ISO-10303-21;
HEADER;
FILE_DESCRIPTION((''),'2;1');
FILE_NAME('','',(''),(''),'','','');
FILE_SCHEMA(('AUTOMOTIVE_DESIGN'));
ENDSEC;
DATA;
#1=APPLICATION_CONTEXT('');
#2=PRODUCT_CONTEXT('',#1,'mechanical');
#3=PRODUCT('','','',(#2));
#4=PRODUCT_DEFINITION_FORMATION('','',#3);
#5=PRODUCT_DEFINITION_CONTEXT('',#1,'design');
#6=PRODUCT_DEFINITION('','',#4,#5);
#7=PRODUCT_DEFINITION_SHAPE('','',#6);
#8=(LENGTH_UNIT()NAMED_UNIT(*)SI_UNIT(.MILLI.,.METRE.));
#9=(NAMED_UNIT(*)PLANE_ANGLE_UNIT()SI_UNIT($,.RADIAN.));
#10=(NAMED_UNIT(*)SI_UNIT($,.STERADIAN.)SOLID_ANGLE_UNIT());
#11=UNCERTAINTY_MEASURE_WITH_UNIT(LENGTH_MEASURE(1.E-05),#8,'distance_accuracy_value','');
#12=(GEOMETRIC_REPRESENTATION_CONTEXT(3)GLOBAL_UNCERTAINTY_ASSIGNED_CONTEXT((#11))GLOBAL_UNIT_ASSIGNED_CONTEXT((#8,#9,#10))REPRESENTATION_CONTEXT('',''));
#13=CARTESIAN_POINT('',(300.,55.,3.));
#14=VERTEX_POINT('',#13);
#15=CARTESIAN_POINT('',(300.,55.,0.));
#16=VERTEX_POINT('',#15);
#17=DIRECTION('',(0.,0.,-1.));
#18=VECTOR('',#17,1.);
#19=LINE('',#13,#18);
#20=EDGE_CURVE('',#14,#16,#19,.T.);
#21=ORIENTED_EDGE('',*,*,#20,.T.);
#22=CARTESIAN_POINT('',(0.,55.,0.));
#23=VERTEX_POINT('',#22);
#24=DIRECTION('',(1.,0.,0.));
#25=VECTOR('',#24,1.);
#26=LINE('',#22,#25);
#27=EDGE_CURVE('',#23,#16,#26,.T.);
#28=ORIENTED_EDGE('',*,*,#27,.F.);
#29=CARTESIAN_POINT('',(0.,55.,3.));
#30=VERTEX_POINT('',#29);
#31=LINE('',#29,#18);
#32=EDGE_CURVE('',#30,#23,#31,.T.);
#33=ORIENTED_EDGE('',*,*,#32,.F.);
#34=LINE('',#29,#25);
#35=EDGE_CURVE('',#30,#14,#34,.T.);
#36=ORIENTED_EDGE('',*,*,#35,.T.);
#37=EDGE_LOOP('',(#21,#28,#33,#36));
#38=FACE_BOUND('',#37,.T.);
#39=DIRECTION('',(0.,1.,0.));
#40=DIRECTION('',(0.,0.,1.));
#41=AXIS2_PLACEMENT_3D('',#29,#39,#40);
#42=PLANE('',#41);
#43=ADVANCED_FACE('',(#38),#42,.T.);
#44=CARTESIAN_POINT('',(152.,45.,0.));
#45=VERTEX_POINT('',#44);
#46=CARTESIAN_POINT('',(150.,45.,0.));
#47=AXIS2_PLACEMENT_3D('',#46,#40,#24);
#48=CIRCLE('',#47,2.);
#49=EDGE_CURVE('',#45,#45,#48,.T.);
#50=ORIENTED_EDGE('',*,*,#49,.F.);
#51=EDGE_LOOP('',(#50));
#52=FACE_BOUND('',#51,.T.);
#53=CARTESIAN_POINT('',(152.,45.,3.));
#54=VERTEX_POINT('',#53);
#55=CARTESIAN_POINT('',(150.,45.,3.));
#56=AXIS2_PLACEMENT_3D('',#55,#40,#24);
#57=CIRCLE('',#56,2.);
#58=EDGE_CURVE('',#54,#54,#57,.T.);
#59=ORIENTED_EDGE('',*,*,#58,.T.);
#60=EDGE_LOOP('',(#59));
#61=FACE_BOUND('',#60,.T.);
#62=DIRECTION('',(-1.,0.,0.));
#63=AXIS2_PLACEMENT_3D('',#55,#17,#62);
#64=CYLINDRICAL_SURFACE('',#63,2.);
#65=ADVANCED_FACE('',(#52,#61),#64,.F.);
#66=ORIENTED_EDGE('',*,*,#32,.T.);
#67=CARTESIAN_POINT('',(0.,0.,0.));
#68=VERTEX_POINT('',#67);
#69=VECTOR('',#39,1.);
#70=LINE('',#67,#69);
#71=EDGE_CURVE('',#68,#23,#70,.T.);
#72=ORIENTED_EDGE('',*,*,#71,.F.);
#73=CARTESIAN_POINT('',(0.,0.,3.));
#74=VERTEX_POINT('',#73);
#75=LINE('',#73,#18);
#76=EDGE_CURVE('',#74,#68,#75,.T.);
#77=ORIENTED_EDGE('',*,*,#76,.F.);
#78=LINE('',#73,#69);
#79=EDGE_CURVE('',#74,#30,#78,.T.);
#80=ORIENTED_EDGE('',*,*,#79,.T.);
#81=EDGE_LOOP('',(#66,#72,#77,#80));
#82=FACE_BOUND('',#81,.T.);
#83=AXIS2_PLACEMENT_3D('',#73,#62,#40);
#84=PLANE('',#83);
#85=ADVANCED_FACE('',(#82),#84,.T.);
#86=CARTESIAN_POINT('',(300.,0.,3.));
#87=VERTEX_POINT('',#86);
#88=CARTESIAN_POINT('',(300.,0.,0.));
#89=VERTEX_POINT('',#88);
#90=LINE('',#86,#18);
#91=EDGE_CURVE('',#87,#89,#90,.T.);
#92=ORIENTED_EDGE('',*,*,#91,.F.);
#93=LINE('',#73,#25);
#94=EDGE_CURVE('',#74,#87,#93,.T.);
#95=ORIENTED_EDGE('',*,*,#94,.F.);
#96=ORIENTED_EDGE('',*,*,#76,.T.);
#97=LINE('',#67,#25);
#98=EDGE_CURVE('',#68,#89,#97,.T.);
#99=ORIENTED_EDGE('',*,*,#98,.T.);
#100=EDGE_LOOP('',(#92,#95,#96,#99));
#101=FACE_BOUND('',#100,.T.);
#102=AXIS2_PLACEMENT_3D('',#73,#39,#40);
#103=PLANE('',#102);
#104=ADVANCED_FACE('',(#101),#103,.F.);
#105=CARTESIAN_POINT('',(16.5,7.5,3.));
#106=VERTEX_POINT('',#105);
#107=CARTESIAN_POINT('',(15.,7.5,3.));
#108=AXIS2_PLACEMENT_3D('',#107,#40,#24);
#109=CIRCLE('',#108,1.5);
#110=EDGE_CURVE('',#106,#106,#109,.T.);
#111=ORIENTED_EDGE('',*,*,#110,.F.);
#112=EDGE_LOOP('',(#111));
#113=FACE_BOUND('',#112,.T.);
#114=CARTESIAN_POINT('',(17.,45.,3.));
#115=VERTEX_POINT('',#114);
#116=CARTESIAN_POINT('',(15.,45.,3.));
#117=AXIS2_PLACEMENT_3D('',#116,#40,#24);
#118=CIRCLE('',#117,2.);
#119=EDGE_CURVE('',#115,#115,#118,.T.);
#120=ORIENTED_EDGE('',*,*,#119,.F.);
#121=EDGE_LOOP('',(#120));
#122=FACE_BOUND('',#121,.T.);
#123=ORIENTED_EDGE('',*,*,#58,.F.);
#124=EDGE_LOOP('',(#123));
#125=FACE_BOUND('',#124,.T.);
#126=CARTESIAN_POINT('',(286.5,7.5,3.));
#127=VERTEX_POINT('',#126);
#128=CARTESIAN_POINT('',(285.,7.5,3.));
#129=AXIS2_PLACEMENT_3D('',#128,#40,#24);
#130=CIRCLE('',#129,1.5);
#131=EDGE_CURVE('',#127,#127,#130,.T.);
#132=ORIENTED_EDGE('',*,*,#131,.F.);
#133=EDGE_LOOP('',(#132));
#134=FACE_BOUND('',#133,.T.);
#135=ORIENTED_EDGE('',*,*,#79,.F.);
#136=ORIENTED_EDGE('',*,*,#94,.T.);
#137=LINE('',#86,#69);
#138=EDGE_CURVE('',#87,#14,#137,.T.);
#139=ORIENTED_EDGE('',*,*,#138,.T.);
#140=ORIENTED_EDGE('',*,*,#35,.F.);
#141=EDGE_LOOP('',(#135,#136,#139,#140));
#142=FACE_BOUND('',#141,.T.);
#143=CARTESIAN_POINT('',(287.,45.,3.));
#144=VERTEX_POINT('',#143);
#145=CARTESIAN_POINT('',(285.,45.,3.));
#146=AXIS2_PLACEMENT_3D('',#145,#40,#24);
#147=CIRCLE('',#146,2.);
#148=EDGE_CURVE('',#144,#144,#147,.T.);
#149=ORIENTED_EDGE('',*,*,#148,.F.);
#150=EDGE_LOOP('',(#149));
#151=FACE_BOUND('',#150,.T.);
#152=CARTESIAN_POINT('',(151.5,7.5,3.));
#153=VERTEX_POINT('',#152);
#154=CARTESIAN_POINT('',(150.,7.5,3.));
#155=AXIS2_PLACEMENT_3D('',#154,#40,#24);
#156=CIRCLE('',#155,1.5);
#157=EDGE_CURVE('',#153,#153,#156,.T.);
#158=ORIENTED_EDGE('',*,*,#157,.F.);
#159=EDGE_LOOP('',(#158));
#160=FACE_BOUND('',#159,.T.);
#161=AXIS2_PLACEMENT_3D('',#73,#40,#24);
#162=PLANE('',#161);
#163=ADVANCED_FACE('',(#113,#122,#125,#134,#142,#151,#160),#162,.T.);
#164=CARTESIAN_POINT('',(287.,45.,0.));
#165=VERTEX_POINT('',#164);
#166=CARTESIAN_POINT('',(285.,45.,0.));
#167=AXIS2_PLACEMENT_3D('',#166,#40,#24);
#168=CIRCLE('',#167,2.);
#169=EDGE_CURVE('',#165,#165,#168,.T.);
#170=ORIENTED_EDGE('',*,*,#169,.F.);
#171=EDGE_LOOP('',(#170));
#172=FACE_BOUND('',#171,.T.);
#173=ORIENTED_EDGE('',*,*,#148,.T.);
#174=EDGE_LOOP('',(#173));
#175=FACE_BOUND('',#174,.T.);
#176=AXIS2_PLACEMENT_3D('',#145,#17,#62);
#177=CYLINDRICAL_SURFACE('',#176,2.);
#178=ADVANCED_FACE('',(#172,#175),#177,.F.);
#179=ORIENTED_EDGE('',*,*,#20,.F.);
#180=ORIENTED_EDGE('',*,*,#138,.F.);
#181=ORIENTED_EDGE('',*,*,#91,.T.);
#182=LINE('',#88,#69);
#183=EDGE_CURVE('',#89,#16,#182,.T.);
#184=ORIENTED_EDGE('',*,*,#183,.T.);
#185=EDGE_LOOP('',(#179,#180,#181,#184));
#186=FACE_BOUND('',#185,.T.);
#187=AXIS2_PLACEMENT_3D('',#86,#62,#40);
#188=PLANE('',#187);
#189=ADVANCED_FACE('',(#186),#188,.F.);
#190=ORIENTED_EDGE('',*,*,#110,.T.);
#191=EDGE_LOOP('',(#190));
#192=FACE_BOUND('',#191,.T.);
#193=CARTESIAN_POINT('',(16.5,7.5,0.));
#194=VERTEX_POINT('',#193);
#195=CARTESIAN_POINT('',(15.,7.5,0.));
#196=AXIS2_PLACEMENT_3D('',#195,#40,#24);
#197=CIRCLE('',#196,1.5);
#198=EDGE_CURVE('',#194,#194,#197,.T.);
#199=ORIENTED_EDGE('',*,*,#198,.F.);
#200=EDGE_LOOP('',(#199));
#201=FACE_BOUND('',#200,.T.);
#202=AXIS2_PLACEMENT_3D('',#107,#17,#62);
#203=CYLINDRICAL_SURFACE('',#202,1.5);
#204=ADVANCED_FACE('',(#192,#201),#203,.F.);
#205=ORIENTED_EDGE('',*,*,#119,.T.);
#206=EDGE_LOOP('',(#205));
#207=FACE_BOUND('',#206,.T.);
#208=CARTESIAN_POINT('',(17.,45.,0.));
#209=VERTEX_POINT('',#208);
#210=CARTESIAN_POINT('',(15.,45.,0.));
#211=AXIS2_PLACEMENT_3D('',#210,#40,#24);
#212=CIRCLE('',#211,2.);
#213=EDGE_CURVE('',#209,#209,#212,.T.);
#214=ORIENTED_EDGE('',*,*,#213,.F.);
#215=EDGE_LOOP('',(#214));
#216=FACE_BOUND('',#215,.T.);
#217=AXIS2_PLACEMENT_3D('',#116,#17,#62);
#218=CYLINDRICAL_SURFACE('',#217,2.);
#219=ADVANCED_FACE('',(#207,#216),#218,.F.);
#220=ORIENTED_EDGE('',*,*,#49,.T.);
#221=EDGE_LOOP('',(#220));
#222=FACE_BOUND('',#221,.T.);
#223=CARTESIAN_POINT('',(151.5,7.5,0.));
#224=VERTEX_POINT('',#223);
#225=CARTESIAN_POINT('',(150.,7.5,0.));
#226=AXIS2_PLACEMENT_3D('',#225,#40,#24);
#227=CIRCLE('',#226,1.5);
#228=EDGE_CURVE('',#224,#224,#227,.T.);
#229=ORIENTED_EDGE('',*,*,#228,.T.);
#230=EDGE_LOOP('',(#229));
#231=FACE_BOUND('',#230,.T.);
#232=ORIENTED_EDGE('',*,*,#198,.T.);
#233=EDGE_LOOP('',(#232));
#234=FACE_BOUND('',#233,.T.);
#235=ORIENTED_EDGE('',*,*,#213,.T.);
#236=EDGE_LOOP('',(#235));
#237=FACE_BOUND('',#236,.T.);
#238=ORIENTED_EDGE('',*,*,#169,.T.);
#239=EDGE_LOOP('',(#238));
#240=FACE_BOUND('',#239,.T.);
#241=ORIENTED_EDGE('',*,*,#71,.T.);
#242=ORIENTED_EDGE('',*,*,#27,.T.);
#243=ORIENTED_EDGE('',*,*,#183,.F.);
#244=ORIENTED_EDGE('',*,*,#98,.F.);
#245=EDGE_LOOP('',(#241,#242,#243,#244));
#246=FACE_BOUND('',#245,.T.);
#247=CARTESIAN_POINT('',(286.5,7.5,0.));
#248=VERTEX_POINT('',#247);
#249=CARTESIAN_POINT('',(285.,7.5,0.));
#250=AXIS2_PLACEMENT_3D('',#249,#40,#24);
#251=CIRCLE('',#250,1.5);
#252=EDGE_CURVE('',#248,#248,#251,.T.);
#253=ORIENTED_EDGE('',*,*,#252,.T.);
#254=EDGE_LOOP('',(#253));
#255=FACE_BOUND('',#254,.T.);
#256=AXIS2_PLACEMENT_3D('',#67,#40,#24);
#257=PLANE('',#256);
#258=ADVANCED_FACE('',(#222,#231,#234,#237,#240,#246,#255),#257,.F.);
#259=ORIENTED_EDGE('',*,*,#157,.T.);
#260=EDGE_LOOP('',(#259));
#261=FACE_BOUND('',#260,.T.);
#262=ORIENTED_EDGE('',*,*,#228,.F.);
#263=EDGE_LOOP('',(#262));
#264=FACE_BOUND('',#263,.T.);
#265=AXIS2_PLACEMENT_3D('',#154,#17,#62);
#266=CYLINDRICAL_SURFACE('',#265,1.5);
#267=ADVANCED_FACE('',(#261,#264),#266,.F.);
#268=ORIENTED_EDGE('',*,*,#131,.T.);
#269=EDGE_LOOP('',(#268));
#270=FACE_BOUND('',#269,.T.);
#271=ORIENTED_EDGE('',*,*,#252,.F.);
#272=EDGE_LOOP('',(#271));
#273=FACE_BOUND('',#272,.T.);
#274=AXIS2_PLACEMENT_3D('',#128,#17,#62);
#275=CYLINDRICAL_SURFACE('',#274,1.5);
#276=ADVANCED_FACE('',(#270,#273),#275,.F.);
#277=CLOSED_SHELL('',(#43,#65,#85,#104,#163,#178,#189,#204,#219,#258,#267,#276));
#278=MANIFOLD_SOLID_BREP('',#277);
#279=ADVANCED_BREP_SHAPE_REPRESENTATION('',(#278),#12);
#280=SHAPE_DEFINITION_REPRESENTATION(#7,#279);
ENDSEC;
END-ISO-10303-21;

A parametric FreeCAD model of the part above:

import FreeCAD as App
import Part
import Sketcher
from FreeCAD import Vector


def add_polygon(sketch, points):
    """Adds a closed chain of lines whose ends are joined by coincident constraints."""
    first, n = sketch.GeometryCount, len(points)
    for a, b in zip(points, points[1:] + points[:1]):
        sketch.addGeometry(Part.LineSegment(App.Vector(*a, 0), App.Vector(*b, 0)), False)
    for i in range(n):
        sketch.addConstraint(Sketcher.Constraint("Coincident", first + i, 2, first + (i + 1) % n, 1))

doc = App.newDocument("Part")
body = doc.addObject("PartDesign::Body", "Body")

# Sketch on XY plane
sketch1 = doc.addObject("Sketcher::SketchObject", "Sketch")
body.addObject(sketch1)
sketch1.AttachmentSupport = (doc.XY_Plane, [""])
sketch1.MapMode = "FlatFace"
add_polygon(sketch1, [(0, 55), (0, 0), (300, 0), (300, 55)])  # lines 0-3
sketch1.addGeometry(Part.Circle(Vector(15, 7.5, 0), Vector(0, 0, 1), 1.5), False)  # 4
sketch1.addGeometry(Part.Circle(Vector(150, 7.5, 0), Vector(0, 0, 1), 1.5), False)  # 5
sketch1.addGeometry(Part.Circle(Vector(285, 7.5, 0), Vector(0, 0, 1), 1.5), False)  # 6
sketch1.addGeometry(Part.Circle(Vector(15, 45, 0), Vector(0, 0, 1), 2), False)  # 7
sketch1.addGeometry(Part.Circle(Vector(150, 45, 0), Vector(0, 0, 1), 2), False)  # 8
sketch1.addGeometry(Part.Circle(Vector(285, 45, 0), Vector(0, 0, 1), 2), False)  # 9
sketch1.addConstraint([
    Sketcher.Constraint("Vertical", 0),
    Sketcher.Constraint("Horizontal", 1),
    Sketcher.Constraint("Vertical", 2),
    Sketcher.Constraint("Horizontal", 3),
    Sketcher.Constraint("Coincident", 0, 2, -1, 1),
    Sketcher.Constraint("Equal", 4, 5),
    Sketcher.Constraint("Equal", 5, 6),
    Sketcher.Constraint("Equal", 7, 8),
    Sketcher.Constraint("Equal", 8, 9),
    Sketcher.Constraint("Horizontal", 4, 3, 5, 3),
    Sketcher.Constraint("Horizontal", 5, 3, 6, 3),
    Sketcher.Constraint("Horizontal", 7, 3, 8, 3),
    Sketcher.Constraint("Horizontal", 8, 3, 9, 3),
    Sketcher.Constraint("Vertical", 4, 3, 7, 3),
    Sketcher.Constraint("Vertical", 5, 3, 8, 3),
    Sketcher.Constraint("Vertical", 6, 3, 9, 3),
    Sketcher.Constraint("Diameter", 4, 3.0),
    Sketcher.Constraint("Diameter", 7, 4.0),
    Sketcher.Constraint("DistanceX", 1, 1, 1, 2, 300.0),
    Sketcher.Constraint("DistanceY", 0, 2, 0, 1, 55.0),
    Sketcher.Constraint("DistanceX", -1, 1, 4, 3, 15.0),
    Sketcher.Constraint("DistanceX", -1, 1, 5, 3, 150.0),
    Sketcher.Constraint("DistanceX", -1, 1, 6, 3, 285.0),
    Sketcher.Constraint("DistanceY", -1, 1, 7, 3, 45.0),
    Sketcher.Constraint("DistanceY", -1, 1, 4, 3, 7.5),
])
pad1 = doc.addObject("PartDesign::Pad", "Pad")
body.addObject(pad1)
pad1.Profile = sketch1
pad1.Length = 3

doc.recompute()
